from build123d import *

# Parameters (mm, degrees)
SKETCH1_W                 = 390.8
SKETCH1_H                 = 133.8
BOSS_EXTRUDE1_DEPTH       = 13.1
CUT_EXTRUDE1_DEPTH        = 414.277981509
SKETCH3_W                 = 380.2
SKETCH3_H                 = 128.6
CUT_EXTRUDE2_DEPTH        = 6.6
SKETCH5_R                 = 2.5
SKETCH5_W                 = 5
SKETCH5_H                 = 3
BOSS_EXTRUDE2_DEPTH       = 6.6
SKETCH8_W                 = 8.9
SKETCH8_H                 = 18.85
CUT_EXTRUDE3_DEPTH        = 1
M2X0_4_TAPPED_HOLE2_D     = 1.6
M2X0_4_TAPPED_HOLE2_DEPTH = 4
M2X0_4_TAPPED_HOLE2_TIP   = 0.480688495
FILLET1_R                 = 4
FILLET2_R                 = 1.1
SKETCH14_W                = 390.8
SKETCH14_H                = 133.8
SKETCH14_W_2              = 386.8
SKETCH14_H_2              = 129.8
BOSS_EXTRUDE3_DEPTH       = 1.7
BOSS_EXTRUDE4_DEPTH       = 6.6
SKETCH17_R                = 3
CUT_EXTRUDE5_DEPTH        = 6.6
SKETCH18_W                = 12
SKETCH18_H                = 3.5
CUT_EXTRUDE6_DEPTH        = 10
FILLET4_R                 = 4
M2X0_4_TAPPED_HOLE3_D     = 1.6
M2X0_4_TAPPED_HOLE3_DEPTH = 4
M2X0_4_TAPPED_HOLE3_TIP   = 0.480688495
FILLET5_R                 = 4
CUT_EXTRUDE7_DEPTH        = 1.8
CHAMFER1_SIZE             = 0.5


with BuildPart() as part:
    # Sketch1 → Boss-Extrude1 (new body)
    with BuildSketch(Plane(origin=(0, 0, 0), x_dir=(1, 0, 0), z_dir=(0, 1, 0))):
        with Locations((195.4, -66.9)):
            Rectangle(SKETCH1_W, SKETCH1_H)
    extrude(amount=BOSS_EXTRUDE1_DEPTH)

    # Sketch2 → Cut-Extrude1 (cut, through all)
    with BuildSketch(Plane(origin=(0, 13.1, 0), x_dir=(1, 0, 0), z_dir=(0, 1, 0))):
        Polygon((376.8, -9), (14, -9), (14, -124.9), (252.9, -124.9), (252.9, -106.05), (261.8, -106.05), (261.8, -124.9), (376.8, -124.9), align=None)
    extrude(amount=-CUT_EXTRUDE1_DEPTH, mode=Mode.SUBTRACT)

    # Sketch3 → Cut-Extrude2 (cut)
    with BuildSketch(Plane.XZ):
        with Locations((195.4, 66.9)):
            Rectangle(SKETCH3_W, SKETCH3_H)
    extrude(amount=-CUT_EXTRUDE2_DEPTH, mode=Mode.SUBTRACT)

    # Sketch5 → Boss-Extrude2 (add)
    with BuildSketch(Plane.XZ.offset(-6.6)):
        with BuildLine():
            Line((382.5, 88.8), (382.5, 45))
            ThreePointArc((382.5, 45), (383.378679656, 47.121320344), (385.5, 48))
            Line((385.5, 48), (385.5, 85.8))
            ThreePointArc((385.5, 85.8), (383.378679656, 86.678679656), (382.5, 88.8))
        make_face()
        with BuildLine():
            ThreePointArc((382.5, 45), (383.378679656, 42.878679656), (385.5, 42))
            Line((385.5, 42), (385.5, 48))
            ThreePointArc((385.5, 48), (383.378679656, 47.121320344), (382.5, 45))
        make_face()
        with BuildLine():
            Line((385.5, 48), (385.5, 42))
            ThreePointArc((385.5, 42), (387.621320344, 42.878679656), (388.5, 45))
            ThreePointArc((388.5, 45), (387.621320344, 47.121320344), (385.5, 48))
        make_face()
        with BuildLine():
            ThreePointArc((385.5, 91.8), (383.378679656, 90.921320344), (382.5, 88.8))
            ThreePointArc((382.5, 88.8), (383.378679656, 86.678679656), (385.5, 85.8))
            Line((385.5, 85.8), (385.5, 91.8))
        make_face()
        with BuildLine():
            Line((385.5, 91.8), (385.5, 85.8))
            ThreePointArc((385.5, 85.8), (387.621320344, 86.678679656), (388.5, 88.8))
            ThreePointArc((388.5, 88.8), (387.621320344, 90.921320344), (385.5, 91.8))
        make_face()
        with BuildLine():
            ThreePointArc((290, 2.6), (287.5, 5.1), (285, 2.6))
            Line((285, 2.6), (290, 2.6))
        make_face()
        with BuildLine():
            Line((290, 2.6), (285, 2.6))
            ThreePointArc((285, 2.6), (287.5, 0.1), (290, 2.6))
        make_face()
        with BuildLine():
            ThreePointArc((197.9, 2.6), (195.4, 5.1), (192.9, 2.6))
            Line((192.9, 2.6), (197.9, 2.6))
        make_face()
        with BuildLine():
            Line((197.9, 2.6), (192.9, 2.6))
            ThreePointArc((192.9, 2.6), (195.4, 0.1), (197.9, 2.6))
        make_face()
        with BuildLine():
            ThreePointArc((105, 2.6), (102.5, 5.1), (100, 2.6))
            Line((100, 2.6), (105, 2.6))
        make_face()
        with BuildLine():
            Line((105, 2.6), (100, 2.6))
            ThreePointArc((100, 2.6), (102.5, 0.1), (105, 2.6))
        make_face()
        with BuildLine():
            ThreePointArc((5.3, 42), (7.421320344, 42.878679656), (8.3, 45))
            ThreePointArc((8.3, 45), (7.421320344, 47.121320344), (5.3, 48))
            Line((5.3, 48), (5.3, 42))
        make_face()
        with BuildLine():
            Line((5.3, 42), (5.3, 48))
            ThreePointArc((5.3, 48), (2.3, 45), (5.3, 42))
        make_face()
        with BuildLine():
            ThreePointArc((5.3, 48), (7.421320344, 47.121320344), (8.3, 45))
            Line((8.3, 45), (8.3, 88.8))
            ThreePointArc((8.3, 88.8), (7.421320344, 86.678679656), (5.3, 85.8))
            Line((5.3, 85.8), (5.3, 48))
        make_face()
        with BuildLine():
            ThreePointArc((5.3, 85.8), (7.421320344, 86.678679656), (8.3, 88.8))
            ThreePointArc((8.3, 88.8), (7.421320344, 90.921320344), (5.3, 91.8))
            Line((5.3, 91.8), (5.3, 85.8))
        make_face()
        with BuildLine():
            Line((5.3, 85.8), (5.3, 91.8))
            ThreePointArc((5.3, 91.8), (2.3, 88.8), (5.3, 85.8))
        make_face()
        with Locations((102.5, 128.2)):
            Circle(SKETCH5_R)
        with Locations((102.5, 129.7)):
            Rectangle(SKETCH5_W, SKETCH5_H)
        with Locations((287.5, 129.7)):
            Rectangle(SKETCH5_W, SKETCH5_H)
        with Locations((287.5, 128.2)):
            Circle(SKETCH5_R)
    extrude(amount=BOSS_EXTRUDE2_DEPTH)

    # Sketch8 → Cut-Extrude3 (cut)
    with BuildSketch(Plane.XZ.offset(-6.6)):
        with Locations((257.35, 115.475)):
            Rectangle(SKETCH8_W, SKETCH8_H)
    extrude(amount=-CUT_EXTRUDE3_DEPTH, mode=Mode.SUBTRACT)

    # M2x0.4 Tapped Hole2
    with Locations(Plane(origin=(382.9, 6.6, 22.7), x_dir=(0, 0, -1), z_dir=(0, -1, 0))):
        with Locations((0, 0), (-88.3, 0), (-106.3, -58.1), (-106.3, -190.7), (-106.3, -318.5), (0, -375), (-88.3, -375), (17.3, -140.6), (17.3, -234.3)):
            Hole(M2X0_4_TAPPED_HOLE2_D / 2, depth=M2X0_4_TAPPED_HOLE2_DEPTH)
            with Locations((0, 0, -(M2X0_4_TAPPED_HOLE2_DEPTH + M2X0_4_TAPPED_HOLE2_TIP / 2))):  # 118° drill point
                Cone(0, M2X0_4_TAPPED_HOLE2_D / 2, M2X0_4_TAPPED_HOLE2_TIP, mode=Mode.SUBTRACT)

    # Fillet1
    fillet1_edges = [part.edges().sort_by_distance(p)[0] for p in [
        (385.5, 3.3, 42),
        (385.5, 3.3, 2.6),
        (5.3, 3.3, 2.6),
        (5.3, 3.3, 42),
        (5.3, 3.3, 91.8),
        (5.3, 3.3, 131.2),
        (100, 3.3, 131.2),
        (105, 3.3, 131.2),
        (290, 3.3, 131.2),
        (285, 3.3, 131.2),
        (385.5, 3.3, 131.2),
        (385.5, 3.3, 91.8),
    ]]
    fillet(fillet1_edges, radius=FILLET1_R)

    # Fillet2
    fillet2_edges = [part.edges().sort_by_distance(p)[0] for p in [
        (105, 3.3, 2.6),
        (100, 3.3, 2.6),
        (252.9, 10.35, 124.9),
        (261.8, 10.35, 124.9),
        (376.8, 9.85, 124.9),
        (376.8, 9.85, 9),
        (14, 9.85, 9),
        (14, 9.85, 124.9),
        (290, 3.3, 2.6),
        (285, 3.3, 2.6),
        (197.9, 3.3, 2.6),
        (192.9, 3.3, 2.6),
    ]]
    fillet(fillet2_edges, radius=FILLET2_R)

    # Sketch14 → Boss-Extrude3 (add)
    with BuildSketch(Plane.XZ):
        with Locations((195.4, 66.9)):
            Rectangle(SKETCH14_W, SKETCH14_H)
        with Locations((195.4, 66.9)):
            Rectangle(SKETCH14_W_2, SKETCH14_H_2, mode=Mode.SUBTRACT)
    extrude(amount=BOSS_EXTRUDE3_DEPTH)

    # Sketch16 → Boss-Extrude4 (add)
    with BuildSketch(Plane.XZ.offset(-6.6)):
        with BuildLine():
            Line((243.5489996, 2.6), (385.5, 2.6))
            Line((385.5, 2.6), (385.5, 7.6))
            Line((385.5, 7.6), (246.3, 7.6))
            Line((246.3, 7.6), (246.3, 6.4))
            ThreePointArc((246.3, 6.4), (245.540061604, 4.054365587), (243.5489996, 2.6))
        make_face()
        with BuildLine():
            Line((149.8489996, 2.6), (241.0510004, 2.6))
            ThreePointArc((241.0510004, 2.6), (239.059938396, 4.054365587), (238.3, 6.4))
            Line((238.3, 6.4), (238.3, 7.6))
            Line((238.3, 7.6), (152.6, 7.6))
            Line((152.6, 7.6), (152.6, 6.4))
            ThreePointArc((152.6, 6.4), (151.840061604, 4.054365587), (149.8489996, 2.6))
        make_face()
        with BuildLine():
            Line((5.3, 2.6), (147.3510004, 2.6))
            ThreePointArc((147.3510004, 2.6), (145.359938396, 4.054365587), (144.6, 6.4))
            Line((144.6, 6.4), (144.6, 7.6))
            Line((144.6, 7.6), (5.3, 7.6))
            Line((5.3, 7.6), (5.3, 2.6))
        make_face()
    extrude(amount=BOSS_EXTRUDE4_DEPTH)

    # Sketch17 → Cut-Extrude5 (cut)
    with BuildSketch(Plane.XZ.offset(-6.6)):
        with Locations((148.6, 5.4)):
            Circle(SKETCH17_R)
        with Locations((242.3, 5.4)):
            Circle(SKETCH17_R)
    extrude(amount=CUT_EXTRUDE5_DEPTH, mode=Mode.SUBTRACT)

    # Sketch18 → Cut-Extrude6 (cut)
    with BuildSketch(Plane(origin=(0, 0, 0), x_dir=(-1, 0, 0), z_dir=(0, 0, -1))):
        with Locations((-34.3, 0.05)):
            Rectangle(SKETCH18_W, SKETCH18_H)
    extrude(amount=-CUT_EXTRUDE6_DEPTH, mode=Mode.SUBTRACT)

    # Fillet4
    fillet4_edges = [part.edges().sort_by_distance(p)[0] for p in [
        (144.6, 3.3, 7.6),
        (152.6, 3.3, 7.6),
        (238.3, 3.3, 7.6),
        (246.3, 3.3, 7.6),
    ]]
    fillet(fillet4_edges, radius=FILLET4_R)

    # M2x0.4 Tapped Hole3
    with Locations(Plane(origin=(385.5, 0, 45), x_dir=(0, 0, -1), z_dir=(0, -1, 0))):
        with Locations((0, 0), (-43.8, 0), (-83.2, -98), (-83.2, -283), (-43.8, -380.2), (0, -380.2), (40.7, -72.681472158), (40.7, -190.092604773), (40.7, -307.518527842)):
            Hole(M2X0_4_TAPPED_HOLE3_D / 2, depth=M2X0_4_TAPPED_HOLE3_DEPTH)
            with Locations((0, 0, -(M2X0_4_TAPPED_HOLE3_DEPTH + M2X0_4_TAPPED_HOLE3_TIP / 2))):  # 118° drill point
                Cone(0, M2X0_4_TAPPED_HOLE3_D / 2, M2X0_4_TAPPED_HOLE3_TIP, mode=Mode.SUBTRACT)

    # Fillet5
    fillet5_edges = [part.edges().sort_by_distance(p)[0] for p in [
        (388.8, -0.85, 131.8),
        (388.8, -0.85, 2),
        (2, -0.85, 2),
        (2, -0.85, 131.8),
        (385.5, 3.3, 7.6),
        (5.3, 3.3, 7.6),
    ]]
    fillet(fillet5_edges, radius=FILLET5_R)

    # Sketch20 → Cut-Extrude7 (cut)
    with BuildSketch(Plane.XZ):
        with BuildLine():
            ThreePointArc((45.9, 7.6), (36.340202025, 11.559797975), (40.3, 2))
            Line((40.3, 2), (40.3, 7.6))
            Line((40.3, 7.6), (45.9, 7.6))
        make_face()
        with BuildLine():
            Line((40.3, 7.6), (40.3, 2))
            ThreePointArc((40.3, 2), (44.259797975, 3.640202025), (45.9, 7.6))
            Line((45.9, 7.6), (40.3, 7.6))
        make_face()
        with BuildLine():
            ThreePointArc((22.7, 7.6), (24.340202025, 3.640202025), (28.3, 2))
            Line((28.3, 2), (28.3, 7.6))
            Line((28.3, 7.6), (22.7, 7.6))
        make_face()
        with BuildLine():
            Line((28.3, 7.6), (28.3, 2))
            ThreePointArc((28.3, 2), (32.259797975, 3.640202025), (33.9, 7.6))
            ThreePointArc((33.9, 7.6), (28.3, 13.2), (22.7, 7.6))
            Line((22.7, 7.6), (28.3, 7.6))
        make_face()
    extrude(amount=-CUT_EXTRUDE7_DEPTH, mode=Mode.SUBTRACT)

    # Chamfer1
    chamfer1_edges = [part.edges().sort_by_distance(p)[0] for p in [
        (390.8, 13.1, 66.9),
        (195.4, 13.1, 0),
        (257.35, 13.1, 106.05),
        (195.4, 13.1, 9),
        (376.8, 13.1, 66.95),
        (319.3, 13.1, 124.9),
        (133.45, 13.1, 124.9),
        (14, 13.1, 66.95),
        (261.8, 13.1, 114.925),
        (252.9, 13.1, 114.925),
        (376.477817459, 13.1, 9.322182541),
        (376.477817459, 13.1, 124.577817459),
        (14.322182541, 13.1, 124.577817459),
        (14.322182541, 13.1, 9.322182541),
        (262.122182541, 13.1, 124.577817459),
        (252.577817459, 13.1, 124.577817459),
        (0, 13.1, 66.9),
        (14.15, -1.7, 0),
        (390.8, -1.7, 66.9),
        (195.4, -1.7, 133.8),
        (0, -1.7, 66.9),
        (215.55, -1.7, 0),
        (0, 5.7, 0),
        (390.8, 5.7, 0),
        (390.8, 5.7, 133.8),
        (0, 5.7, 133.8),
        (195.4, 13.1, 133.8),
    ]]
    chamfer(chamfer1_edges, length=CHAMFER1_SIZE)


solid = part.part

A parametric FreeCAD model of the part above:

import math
import FreeCAD as App
import Part
import Sketcher

V = App.Vector


def edges_at(feature, points):
    """Names of the edges that pass closest to the given points."""
    edges = feature.Shape.Edges
    near = lambda p: min(range(len(edges)), key=lambda i: edges[i].distToShape(Part.Vertex(*p))[0])
    return sorted({f"Edge{near(p) + 1}" for p in points})


def add_polygon(sketch, points):
    """Adds a closed chain of lines whose ends are joined by coincident constraints."""
    first, n = sketch.GeometryCount, len(points)
    for a, b in zip(points, points[1:] + points[:1]):
        sketch.addGeometry(Part.LineSegment(App.Vector(*a, 0), App.Vector(*b, 0)), False)
    for i in range(n):
        sketch.addConstraint(Sketcher.Constraint("Coincident", first + i, 2, first + (i + 1) % n, 1))

doc = App.newDocument("Part")
body = doc.addObject("PartDesign::Body", "Body")

sketch1 = body.newObject("Sketcher::SketchObject", "Sketch")
sketch1.AttachmentSupport = (doc.getObject("XZ_Plane"), [""])
sketch1.MapMode = "FlatFace"
add_polygon(sketch1, [(0, 0), (0, 134), (391, 134), (391, 0)])
sketch1.addConstraint(Sketcher.Constraint("Vertical", 0))
sketch1.addConstraint(Sketcher.Constraint("Horizontal", 1))
sketch1.addConstraint(Sketcher.Constraint("Vertical", 2))
sketch1.addConstraint(Sketcher.Constraint("Horizontal", 3))
sketch1.addConstraint(Sketcher.Constraint("Coincident", 3, 2, -1, 1))
sketch1.addConstraint(Sketcher.Constraint("DistanceX", 1, 1, 1, 2, 390.8))
sketch1.addConstraint(Sketcher.Constraint("DistanceY", 0, 1, 0, 2, 133.8))
pad1 = body.newObject("PartDesign::Pad", "Pad")
pad1.Profile = sketch1
pad1.Length = 13.1
pad1.Reversed = True

sketch2 = body.newObject("Sketcher::SketchObject", "Sketch001")
sketch2.AttachmentSupport = (doc.getObject("XZ_Plane"), [""])
sketch2.MapMode = "FlatFace"
sketch2.AttachmentOffset = App.Placement(V(0, 0, -13.1), App.Rotation())
add_polygon(sketch2, [(377, 9), (14, 9), (14, 125), (253, 125), (253, 106), (262, 106), (262, 125), (377, 125)])
sketch2.addConstraint(Sketcher.Constraint("Horizontal", 0))
sketch2.addConstraint(Sketcher.Constraint("Vertical", 1))
sketch2.addConstraint(Sketcher.Constraint("Horizontal", 2))
sketch2.addConstraint(Sketcher.Constraint("Vertical", 3))
sketch2.addConstraint(Sketcher.Constraint("Horizontal", 4))
sketch2.addConstraint(Sketcher.Constraint("Vertical", 5))
sketch2.addConstraint(Sketcher.Constraint("Horizontal", 6))
sketch2.addConstraint(Sketcher.Constraint("Vertical", 7))
sketch2.addConstraint(Sketcher.Constraint("Horizontal", 2, 2, 5, 2))
sketch2.addConstraint(Sketcher.Constraint("DistanceX", 6, 1, 6, 2, 115.0))
sketch2.addConstraint(Sketcher.Constraint("DistanceX", 0, 2, 0, 1, 362.8))
sketch2.addConstraint(Sketcher.Constraint("DistanceX", 2, 1, 2, 2, 238.9))
sketch2.addConstraint(Sketcher.Constraint("DistanceY", 1, 1, 1, 2, 115.9))
sketch2.addConstraint(Sketcher.Constraint("DistanceX", -1, 1, 0, 2, 14.0))
sketch2.addConstraint(Sketcher.Constraint("DistanceY", -1, 1, 0, 2, 9.0))
sketch2.addConstraint(Sketcher.Constraint("DistanceY", 3, 2, 3, 1, 18.85))
pocket1 = body.newObject("PartDesign::Pocket", "Pocket")
pocket1.Profile = sketch2
pocket1.Type = "ThroughAll"
pocket1.Reversed = True

sketch3 = body.newObject("Sketcher::SketchObject", "Sketch002")
sketch3.AttachmentSupport = (doc.getObject("XZ_Plane"), [""])
sketch3.MapMode = "FlatFace"
add_polygon(sketch3, [(5, 131), (5, 3), (386, 3), (386, 131)])
sketch3.addConstraint(Sketcher.Constraint("Vertical", 0))
sketch3.addConstraint(Sketcher.Constraint("Horizontal", 1))
sketch3.addConstraint(Sketcher.Constraint("Vertical", 2))
sketch3.addConstraint(Sketcher.Constraint("Horizontal", 3))
sketch3.addConstraint(Sketcher.Constraint("DistanceX", 1, 1, 1, 2, 380.2))
sketch3.addConstraint(Sketcher.Constraint("DistanceY", 0, 2, 0, 1, 128.6))
sketch3.addConstraint(Sketcher.Constraint("DistanceX", -1, 1, 0, 2, 5.3))
sketch3.addConstraint(Sketcher.Constraint("DistanceY", -1, 1, 0, 2, 2.6))
pocket2 = body.newObject("PartDesign::Pocket", "Pocket001")
pocket2.Profile = sketch3
pocket2.Length = 6.6

sketch4 = body.newObject("Sketcher::SketchObject", "Sketch003")
sketch4.AttachmentSupport = (doc.getObject("XZ_Plane"), [""])
sketch4.MapMode = "FlatFace"
sketch4.AttachmentOffset = App.Placement(V(0, 0, -6.6), App.Rotation())
sketch4.addGeometry(Part.LineSegment(V(382.5, 88.8, 0), V(382.5, 45, 0)), False)
sketch4.addGeometry(Part.ArcOfCircle(Part.Circle(V(385.5, 45, 0), V(0, 0, 1), 3), math.radians(180), math.radians(270)), False)
sketch4.addGeometry(Part.ArcOfCircle(Part.Circle(V(385.5, 45, 0), V(0, 0, 1), 3), math.radians(-90), math.radians(0)), False)
sketch4.addGeometry(Part.ArcOfCircle(Part.Circle(V(385.5, 45, 0), V(0, 0, 1), 3), math.radians(0), math.radians(90)), False)
sketch4.addGeometry(Part.LineSegment(V(385.5, 48, 0), V(385.5, 85.8, 0)), False)
sketch4.addGeometry(Part.ArcOfCircle(Part.Circle(V(385.5, 88.8, 0), V(0, 0, 1), 3), math.radians(-90), math.radians(0)), False)
sketch4.addGeometry(Part.ArcOfCircle(Part.Circle(V(385.5, 88.8, 0), V(0, 0, 1), 3), math.radians(0), math.radians(90)), False)
sketch4.addGeometry(Part.ArcOfCircle(Part.Circle(V(385.5, 88.8, 0), V(0, 0, 1), 3), math.radians(90), math.radians(180)), False)
sketch4.addGeometry(Part.Circle(V(287.5, 2.6, 0), V(0, 0, 1), 2.5), False)
sketch4.addGeometry(Part.Circle(V(195.4, 2.6, 0), V(0, 0, 1), 2.5), False)
sketch4.addGeometry(Part.Circle(V(102.5, 2.6, 0), V(0, 0, 1), 2.5), False)
sketch4.addGeometry(Part.ArcOfCircle(Part.Circle(V(5.3, 45, 0), V(0, 0, 1), 3), math.radians(-90), math.radians(0)), False)
sketch4.addGeometry(Part.LineSegment(V(8.3, 45, 0), V(8.3, 88.8, 0)), False)
sketch4.addGeometry(Part.ArcOfCircle(Part.Circle(V(5.3, 88.8, 0), V(0, 0, 1), 3), math.radians(0), math.radians(90)), False)
sketch4.addGeometry(Part.ArcOfCircle(Part.Circle(V(5.3, 88.8, 0), V(0, 0, 1), 3), math.radians(90), math.radians(270)), False)
sketch4.addGeometry(Part.LineSegment(V(5.3, 85.8, 0), V(5.3, 48, 0)), False)
sketch4.addGeometry(Part.ArcOfCircle(Part.Circle(V(5.3, 45, 0), V(0, 0, 1), 3), math.radians(90), math.radians(270)), False)
sketch4.addGeometry(Part.ArcOfCircle(Part.Circle(V(102.5, 128.2, 0), V(0, 0, 1), 2.5), math.radians(180), math.radians(360)), False)
sketch4.addGeometry(Part.LineSegment(V(105, 128.2, 0), V(105, 131.2, 0)), False)
sketch4.addGeometry(Part.LineSegment(V(105, 131.2, 0), V(100, 131.2, 0)), False)
sketch4.addGeometry(Part.LineSegment(V(100, 131.2, 0), V(100, 128.2, 0)), False)
sketch4.addGeometry(Part.LineSegment(V(285, 131.2, 0), V(285, 128.2, 0)), False)
sketch4.addGeometry(Part.ArcOfCircle(Part.Circle(V(287.5, 128.2, 0), V(0, 0, 1), 2.5), math.radians(180), math.radians(360)), False)
sketch4.addGeometry(Part.LineSegment(V(290, 128.2, 0), V(290, 131.2, 0)), False)
sketch4.addGeometry(Part.LineSegment(V(290, 131.2, 0), V(285, 131.2, 0)), False)
sketch4.addConstraint(Sketcher.Constraint("Tangent", 0, 2, 1, 1))
sketch4.addConstraint(Sketcher.Constraint("Tangent", 1, 2, 2, 1))
sketch4.addConstraint(Sketcher.Constraint("Tangent", 2, 2, 3, 1))
sketch4.addConstraint(Sketcher.Constraint("Coincident", 3, 2, 4, 1))
sketch4.addConstraint(Sketcher.Constraint("Coincident", 4, 2, 5, 1))
sketch4.addConstraint(Sketcher.Constraint("Tangent", 5, 2, 6, 1))
sketch4.addConstraint(Sketcher.Constraint("Tangent", 6, 2, 7, 1))
sketch4.addConstraint(Sketcher.Constraint("Tangent", 7, 2, 0, 1))
sketch4.addConstraint(Sketcher.Constraint("Tangent", 11, 2, 12, 1))
sketch4.addConstraint(Sketcher.Constraint("Tangent", 12, 2, 13, 1))
sketch4.addConstraint(Sketcher.Constraint("Tangent", 13, 2, 14, 1))
sketch4.addConstraint(Sketcher.Constraint("Coincident", 14, 2, 15, 1))
sketch4.addConstraint(Sketcher.Constraint("Coincident", 15, 2, 16, 1))
sketch4.addConstraint(Sketcher.Constraint("Tangent", 16, 2, 11, 1))
sketch4.addConstraint(Sketcher.Constraint("Tangent", 17, 2, 18, 1))
sketch4.addConstraint(Sketcher.Constraint("Coincident", 18, 2, 19, 1))
sketch4.addConstraint(Sketcher.Constraint("Coincident", 19, 2, 20, 1))
sketch4.addConstraint(Sketcher.Constraint("Tangent", 20, 2, 17, 1))
sketch4.addConstraint(Sketcher.Constraint("Tangent", 21, 2, 22, 1))
sketch4.addConstraint(Sketcher.Constraint("Tangent", 22, 2, 23, 1))
sketch4.addConstraint(Sketcher.Constraint("Coincident", 23, 2, 24, 1))
sketch4.addConstraint(Sketcher.Constraint("Coincident", 24, 2, 21, 1))
sketch4.addConstraint(Sketcher.Constraint("Vertical", 0))
sketch4.addConstraint(Sketcher.Constraint("Vertical", 4))
sketch4.addConstraint(Sketcher.Constraint("Vertical", 12))
sketch4.addConstraint(Sketcher.Constraint("Vertical", 15))
sketch4.addConstraint(Sketcher.Constraint("Vertical", 18))
sketch4.addConstraint(Sketcher.Constraint("Horizontal", 19))
sketch4.addConstraint(Sketcher.Constraint("Vertical", 20))
sketch4.addConstraint(Sketcher.Constraint("Vertical", 21))
sketch4.addConstraint(Sketcher.Constraint("Vertical", 23))
sketch4.addConstraint(Sketcher.Constraint("Horizontal", 24))
sketch4.addConstraint(Sketcher.Constraint("Coincident", 3, 3, 1, 3))
sketch4.addConstraint(Sketcher.Constraint("Coincident", 7, 3, 5, 3))
sketch4.addConstraint(Sketcher.Constraint("Equal", 3, 5))
sketch4.addConstraint(Sketcher.Constraint("Equal", 8, 9))
sketch4.addConstraint(Sketcher.Constraint("Equal", 9, 10))
sketch4.addConstraint(Sketcher.Constraint("Equal", 7, 11))
sketch4.addConstraint(Sketcher.Constraint("Equal", 11, 13))
sketch4.addConstraint(Sketcher.Constraint("Equal", 13, 14))
sketch4.addConstraint(Sketcher.Constraint("Equal", 14, 16))
sketch4.addConstraint(Sketcher.Constraint("Equal", 10, 17))
sketch4.addConstraint(Sketcher.Constraint("Equal", 17, 22))
sketch4.addConstraint(Sketcher.Constraint("Horizontal", 8, 3, 9, 3))
sketch4.addConstraint(Sketcher.Constraint("Horizontal", 9, 3, 10, 3))
sketch4.addConstraint(Sketcher.Constraint("Horizontal", 3, 3, 11, 3))
sketch4.addConstraint(Sketcher.Constraint("Horizontal", 7, 3, 13, 3))
sketch4.addConstraint(Sketcher.Constraint("Horizontal", 17, 3, 22, 3))
sketch4.addConstraint(Sketcher.Constraint("Horizontal", 0, 2, 2, 2))
sketch4.addConstraint(Sketcher.Constraint("Horizontal", 14, 3, 5, 2))
sketch4.addConstraint(Sketcher.Constraint("Horizontal", 19, 2, 23, 2))
sketch4.addConstraint(Sketcher.Constraint("Vertical", 10, 3, 17, 3))
sketch4.addConstraint(Sketcher.Constraint("Vertical", 8, 3, 22, 3))
sketch4.addConstraint(Sketcher.Constraint("Vertical", 7, 3, 1, 2))
sketch4.addConstraint(Sketcher.Constraint("Vertical", 1, 2, 3, 2))
sketch4.addConstraint(Sketcher.Constraint("Vertical", 4, 2, 6, 2))
sketch4.addConstraint(Sketcher.Constraint("Vertical", 16, 3, 13, 2))
sketch4.addConstraint(Sketcher.Constraint("Vertical", 13, 2, 14, 2))
sketch4.addConstraint(Sketcher.Constraint("Vertical", 15, 2, 16, 2))
sketch4.addConstraint(Sketcher.Constraint("Diameter", 8, 5.0))
sketch4.addConstraint(Sketcher.Constraint("Radius", 1, 3.0))
sketch4.addConstraint(Sketcher.Constraint("DistanceY", 18, 1, 18, 2, 3.0))
sketch4.addConstraint(Sketcher.Constraint("DistanceY", 0, 2, 0, 1, 43.8))
sketch4.addConstraint(Sketcher.Constraint("DistanceY", -1, 1, 1, 3, 45.0))
sketch4.addConstraint(Sketcher.Constraint("DistanceX", -1, 1, 17, 2, 105.0))
sketch4.addConstraint(Sketcher.Constraint("DistanceX", -1, 1, 21, 2, 285.0))
sketch4.addConstraint(Sketcher.Constraint("DistanceX", 8, 3, 1, 3, 98.0))
sketch4.addConstraint(Sketcher.Constraint("DistanceY", -1, 1, 8, 3, 2.6))
sketch4.addConstraint(Sketcher.Constraint("DistanceX", -1, 1, 9, 3, 195.4))
sketch4.addConstraint(Sketcher.Constraint("DistanceX", -1, 1, 11, 3, 5.3))
sketch4.addConstraint(Sketcher.Constraint("DistanceY", -1, 1, 17, 3, 128.2))
pad2 = body.newObject("PartDesign::Pad", "Pad001")
pad2.Profile = sketch4
pad2.Length = 6.6

sketch5 = body.newObject("Sketcher::SketchObject", "Sketch004")
sketch5.AttachmentSupport = (doc.getObject("XZ_Plane"), [""])
sketch5.MapMode = "FlatFace"
sketch5.AttachmentOffset = App.Placement(V(0, 0, -6.6), App.Rotation())
add_polygon(sketch5, [(253, 125), (253, 106), (262, 106), (262, 125)])
sketch5.addConstraint(Sketcher.Constraint("Vertical", 0))
sketch5.addConstraint(Sketcher.Constraint("Horizontal", 1))
sketch5.addConstraint(Sketcher.Constraint("Vertical", 2))
sketch5.addConstraint(Sketcher.Constraint("Horizontal", 3))
sketch5.addConstraint(Sketcher.Constraint("DistanceX", 1, 1, 1, 2, 8.9))
sketch5.addConstraint(Sketcher.Constraint("DistanceY", 0, 2, 0, 1, 18.85))
sketch5.addConstraint(Sketcher.Constraint("DistanceX", -1, 1, 0, 2, 252.9))
sketch5.addConstraint(Sketcher.Constraint("DistanceY", -1, 1, 2, 2, 124.9))
pocket3 = body.newObject("PartDesign::Pocket", "Pocket002")
pocket3.Profile = sketch5
pocket3.Length = 1

sketch6 = body.newObject("Sketcher::SketchObject", "Sketch005")
sketch6.AttachmentSupport = (doc.getObject("XZ_Plane"), [""])
sketch6.MapMode = "FlatFace"
sketch6.AttachmentOffset = App.Placement(V(0, 0, -6.6), App.Rotation())
sketch6.addGeometry(Part.Circle(V(382.9, 22.7, 0), V(0, 0, 1), 0.8), False)
sketch6.addGeometry(Part.Circle(V(382.9, 111, 0), V(0, 0, 1), 0.8), False)
sketch6.addGeometry(Part.Circle(V(324.8, 129, 0), V(0, 0, 1), 0.8), False)
sketch6.addGeometry(Part.Circle(V(192.2, 129, 0), V(0, 0, 1), 0.8), False)
sketch6.addGeometry(Part.Circle(V(64.4, 129, 0), V(0, 0, 1), 0.8), False)
sketch6.addGeometry(Part.Circle(V(7.9, 22.7, 0), V(0, 0, 1), 0.8), False)
sketch6.addGeometry(Part.Circle(V(7.9, 111, 0), V(0, 0, 1), 0.8), False)
sketch6.addGeometry(Part.Circle(V(242.3, 5.4, 0), V(0, 0, 1), 0.8), False)
sketch6.addGeometry(Part.Circle(V(148.6, 5.4, 0), V(0, 0, 1), 0.8), False)
sketch6.addConstraint(Sketcher.Constraint("Equal", 0, 1))
sketch6.addConstraint(Sketcher.Constraint("Equal", 1, 2))
sketch6.addConstraint(Sketcher.Constraint("Equal", 2, 3))
sketch6.addConstraint(Sketcher.Constraint("Equal", 3, 4))
sketch6.addConstraint(Sketcher.Constraint("Equal", 4, 5))
sketch6.addConstraint(Sketcher.Constraint("Equal", 5, 6))
sketch6.addConstraint(Sketcher.Constraint("Equal", 6, 7))
sketch6.addConstraint(Sketcher.Constraint("Equal", 7, 8))
sketch6.addConstraint(Sketcher.Constraint("Horizontal", 2, 3, 3, 3))
sketch6.addConstraint(Sketcher.Constraint("Horizontal", 3, 3, 4, 3))
sketch6.addConstraint(Sketcher.Constraint("Horizontal", 0, 3, 5, 3))
sketch6.addConstraint(Sketcher.Constraint("Horizontal", 1, 3, 6, 3))
sketch6.addConstraint(Sketcher.Constraint("Horizontal", 7, 3, 8, 3))
sketch6.addConstraint(Sketcher.Constraint("Vertical", 0, 3, 1, 3))
sketch6.addConstraint(Sketcher.Constraint("Vertical", 5, 3, 6, 3))
sketch6.addConstraint(Sketcher.Constraint("Diameter", 0, 1.6))
sketch6.addConstraint(Sketcher.Constraint("DistanceY", -1, 1, 1, 3, 111.0))
sketch6.addConstraint(Sketcher.Constraint("DistanceY", -1, 1, 2, 3, 129.0))
sketch6.addConstraint(Sketcher.Constraint("DistanceX", 5, 3, 0, 3, 375.0))
sketch6.addConstraint(Sketcher.Constraint("DistanceX", -1, 1, 0, 3, 382.9))
sketch6.addConstraint(Sketcher.Constraint("DistanceY", -1, 1, 0, 3, 22.7))
sketch6.addConstraint(Sketcher.Constraint("DistanceX", -1, 1, 2, 3, 324.8))
sketch6.addConstraint(Sketcher.Constraint("DistanceX", -1, 1, 3, 3, 192.2))
sketch6.addConstraint(Sketcher.Constraint("DistanceX", -1, 1, 4, 3, 64.4))
sketch6.addConstraint(Sketcher.Constraint("DistanceX", -1, 1, 7, 3, 242.3))
sketch6.addConstraint(Sketcher.Constraint("DistanceY", -1, 1, 7, 3, 5.4))
sketch6.addConstraint(Sketcher.Constraint("DistanceX", -1, 1, 8, 3, 148.6))
doc.recompute()
hole = body.newObject("PartDesign::Hole", "Hole")
hole.Profile = sketch6
hole.ThreadType = "None"
hole.Diameter = 1.6
hole.DepthType = "Dimension"
hole.Depth = 4
hole.DrillPoint = "Angled"
hole.DrillPointAngle = 118
doc.recompute()

fillet = body.newObject("PartDesign::Fillet", "Fillet")
fillet.Base = (hole, edges_at(hole, [
    (385.5, 3.3, 42),
    (385.5, 3.3, 2.6),
    (5.3, 3.3, 2.6),
    (5.3, 3.3, 42),
    (5.3, 3.3, 91.8),
    (5.3, 3.3, 131.2),
    (100, 3.3, 131.2),
    (105, 3.3, 131.2),
    (290, 3.3, 131.2),
    (285, 3.3, 131.2),
    (385.5, 3.3, 131.2),
    (385.5, 3.3, 91.8),
]))
fillet.Radius = 4
doc.recompute()

fillet2 = body.newObject("PartDesign::Fillet", "Fillet001")
fillet2.Base = (fillet, edges_at(fillet, [
    (105, 3.3, 2.6),
    (100, 3.3, 2.6),
    (252.9, 10.35, 124.9),
    (261.8, 10.35, 124.9),
    (376.8, 9.85, 124.9),
    (376.8, 9.85, 9),
    (14, 9.85, 9),
    (14, 9.85, 124.9),
    (290, 3.3, 2.6),
    (285, 3.3, 2.6),
    (197.9, 3.3, 2.6),
    (192.9, 3.3, 2.6),
]))
fillet2.Radius = 1.1

sketch7 = body.newObject("Sketcher::SketchObject", "Sketch006")
sketch7.AttachmentSupport = (doc.getObject("XZ_Plane"), [""])
sketch7.MapMode = "FlatFace"
add_polygon(sketch7, [(0, 134), (0, 0), (391, 0), (391, 134)])
add_polygon(sketch7, [(389, 2), (2, 2), (2, 132), (389, 132)])
sketch7.addConstraint(Sketcher.Constraint("Vertical", 0))
sketch7.addConstraint(Sketcher.Constraint("Horizontal", 1))
sketch7.addConstraint(Sketcher.Constraint("Vertical", 2))
sketch7.addConstraint(Sketcher.Constraint("Horizontal", 3))
sketch7.addConstraint(Sketcher.Constraint("Horizontal", 4))
sketch7.addConstraint(Sketcher.Constraint("Vertical", 5))
sketch7.addConstraint(Sketcher.Constraint("Horizontal", 6))
sketch7.addConstraint(Sketcher.Constraint("Vertical", 7))
sketch7.addConstraint(Sketcher.Constraint("Coincident", 0, 2, -1, 1))
sketch7.addConstraint(Sketcher.Constraint("DistanceX", 1, 1, 1, 2, 390.8))
sketch7.addConstraint(Sketcher.Constraint("DistanceX", 4, 2, 4, 1, 386.8))
sketch7.addConstraint(Sketcher.Constraint("DistanceY", 0, 2, 0, 1, 133.8))
sketch7.addConstraint(Sketcher.Constraint("DistanceY", 5, 1, 5, 2, 129.8))
sketch7.addConstraint(Sketcher.Constraint("DistanceX", -1, 1, 4, 2, 2.0))
sketch7.addConstraint(Sketcher.Constraint("DistanceY", -1, 1, 4, 2, 2.0))
pad3 = body.newObject("PartDesign::Pad", "Pad002")
pad3.Profile = sketch7
pad3.Length = 1.7

sketch8 = body.newObject("Sketcher::SketchObject", "Sketch007")
sketch8.AttachmentSupport = (doc.getObject("XZ_Plane"), [""])
sketch8.MapMode = "FlatFace"
sketch8.AttachmentOffset = App.Placement(V(0, 0, -6.6), App.Rotation())
sketch8.addGeometry(Part.LineSegment(V(243.5, 2.6, 0), V(385.5, 2.6, 0)), False)
sketch8.addGeometry(Part.LineSegment(V(385.5, 2.6, 0), V(385.5, 7.6, 0)), False)
sketch8.addGeometry(Part.LineSegment(V(385.5, 7.6, 0), V(246.3, 7.6, 0)), False)
sketch8.addGeometry(Part.LineSegment(V(246.3, 7.6, 0), V(246.3, 6.4, 0)), False)
sketch8.addGeometry(Part.ArcOfCircle(Part.Circle(V(242.3, 6.4, 0), V(0, 0, 1), 4), math.radians(-72), math.radians(0)), False)
sketch8.addGeometry(Part.LineSegment(V(149.8, 2.6, 0), V(241.1, 2.6, 0)), False)
sketch8.addGeometry(Part.ArcOfCircle(Part.Circle(V(242.3, 6.4, 0), V(0, 0, 1), 4), math.radians(-180), math.radians(-108)), False)
sketch8.addGeometry(Part.LineSegment(V(238.3, 6.4, 0), V(238.3, 7.6, 0)), False)
sketch8.addGeometry(Part.LineSegment(V(238.3, 7.6, 0), V(152.6, 7.6, 0)), False)
sketch8.addGeometry(Part.LineSegment(V(152.6, 7.6, 0), V(152.6, 6.4, 0)), False)
sketch8.addGeometry(Part.ArcOfCircle(Part.Circle(V(148.6, 6.4, 0), V(0, 0, 1), 4), math.radians(-72), math.radians(0)), False)
sketch8.addGeometry(Part.LineSegment(V(5.3, 2.6, 0), V(147.4, 2.6, 0)), False)
sketch8.addGeometry(Part.ArcOfCircle(Part.Circle(V(148.6, 6.4, 0), V(0, 0, 1), 4), math.radians(-180), math.radians(-108)), False)
sketch8.addGeometry(Part.LineSegment(V(144.6, 6.4, 0), V(144.6, 7.6, 0)), False)
sketch8.addGeometry(Part.LineSegment(V(144.6, 7.6, 0), V(5.3, 7.6, 0)), False)
sketch8.addGeometry(Part.LineSegment(V(5.3, 7.6, 0), V(5.3, 2.6, 0)), False)
sketch8.addConstraint(Sketcher.Constraint("Coincident", 0, 2, 1, 1))
sketch8.addConstraint(Sketcher.Constraint("Coincident", 1, 2, 2, 1))
sketch8.addConstraint(Sketcher.Constraint("Coincident", 2, 2, 3, 1))
sketch8.addConstraint(Sketcher.Constraint("Tangent", 3, 2, 4, 2))
sketch8.addConstraint(Sketcher.Constraint("Coincident", 4, 1, 0, 1))
sketch8.addConstraint(Sketcher.Constraint("Coincident", 5, 2, 6, 2))
sketch8.addConstraint(Sketcher.Constraint("Tangent", 6, 1, 7, 1))
sketch8.addConstraint(Sketcher.Constraint("Coincident", 7, 2, 8, 1))
sketch8.addConstraint(Sketcher.Constraint("Coincident", 8, 2, 9, 1))
sketch8.addConstraint(Sketcher.Constraint("Tangent", 9, 2, 10, 2))
sketch8.addConstraint(Sketcher.Constraint("Coincident", 10, 1, 5, 1))
sketch8.addConstraint(Sketcher.Constraint("Coincident", 11, 2, 12, 2))
sketch8.addConstraint(Sketcher.Constraint("Tangent", 12, 1, 13, 1))
sketch8.addConstraint(Sketcher.Constraint("Coincident", 13, 2, 14, 1))
sketch8.addConstraint(Sketcher.Constraint("Coincident", 14, 2, 15, 1))
sketch8.addConstraint(Sketcher.Constraint("Coincident", 15, 2, 11, 1))
sketch8.addConstraint(Sketcher.Constraint("Horizontal", 0))
sketch8.addConstraint(Sketcher.Constraint("Vertical", 1))
sketch8.addConstraint(Sketcher.Constraint("Horizontal", 2))
sketch8.addConstraint(Sketcher.Constraint("Vertical", 3))
sketch8.addConstraint(Sketcher.Constraint("Horizontal", 5))
sketch8.addConstraint(Sketcher.Constraint("Vertical", 7))
sketch8.addConstraint(Sketcher.Constraint("Horizontal", 8))
sketch8.addConstraint(Sketcher.Constraint("Vertical", 9))
sketch8.addConstraint(Sketcher.Constraint("Horizontal", 11))
sketch8.addConstraint(Sketcher.Constraint("Vertical", 13))
sketch8.addConstraint(Sketcher.Constraint("Horizontal", 14))
sketch8.addConstraint(Sketcher.Constraint("Vertical", 15))
sketch8.addConstraint(Sketcher.Constraint("Coincident", 6, 3, 4, 3))
sketch8.addConstraint(Sketcher.Constraint("Coincident", 12, 3, 10, 3))
sketch8.addConstraint(Sketcher.Constraint("Equal", 4, 6))
sketch8.addConstraint(Sketcher.Constraint("Equal", 6, 10))
sketch8.addConstraint(Sketcher.Constraint("Equal", 10, 12))
sketch8.addConstraint(Sketcher.Constraint("Horizontal", 6, 3, 10, 3))
sketch8.addConstraint(Sketcher.Constraint("Horizontal", 4, 1, 5, 2))
sketch8.addConstraint(Sketcher.Constraint("Horizontal", 2, 2, 7, 2))
sketch8.addConstraint(Sketcher.Constraint("Horizontal", 10, 1, 11, 2))
sketch8.addConstraint(Sketcher.Constraint("Horizontal", 8, 2, 13, 2))
sketch8.addConstraint(Sketcher.Constraint("Radius", 4, 4.0))
sketch8.addConstraint(Sketcher.Constraint("DistanceY", 1, 1, 1, 2, 5.0))
sketch8.addConstraint(Sketcher.Constraint("DistanceX", 2, 2, 2, 1, 139.2))
sketch8.addConstraint(Sketcher.Constraint("DistanceX", 8, 2, 8, 1, 85.7))
sketch8.addConstraint(Sketcher.Constraint("DistanceX", 14, 2, 14, 1, 139.3))
sketch8.addConstraint(Sketcher.Constraint("DistanceY", 3, 2, 3, 1, 1.2))
sketch8.addConstraint(Sketcher.Constraint("DistanceX", -1, 1, 4, 3, 242.3))
sketch8.addConstraint(Sketcher.Constraint("DistanceY", -1, 1, 4, 3, 6.4))
pad4 = body.newObject("PartDesign::Pad", "Pad003")
pad4.Profile = sketch8
pad4.Length = 6.6

sketch9 = body.newObject("Sketcher::SketchObject", "Sketch008")
sketch9.AttachmentSupport = (doc.getObject("XZ_Plane"), [""])
sketch9.MapMode = "FlatFace"
sketch9.AttachmentOffset = App.Placement(V(0, 0, -6.6), App.Rotation())
sketch9.addGeometry(Part.Circle(V(148.6, 5.4, 0), V(0, 0, 1), 3), False)
sketch9.addGeometry(Part.Circle(V(242.3, 5.4, 0), V(0, 0, 1), 3), False)
sketch9.addConstraint(Sketcher.Constraint("Equal", 0, 1))
sketch9.addConstraint(Sketcher.Constraint("Horizontal", 0, 3, 1, 3))
sketch9.addConstraint(Sketcher.Constraint("Diameter", 0, 6.0))
sketch9.addConstraint(Sketcher.Constraint("DistanceX", -1, 1, 0, 3, 148.6))
sketch9.addConstraint(Sketcher.Constraint("DistanceY", -1, 1, 0, 3, 5.4))
sketch9.addConstraint(Sketcher.Constraint("DistanceX", -1, 1, 1, 3, 242.3))
pocket4 = body.newObject("PartDesign::Pocket", "Pocket003")
pocket4.Profile = sketch9
pocket4.Length = 6.6
pocket4.Reversed = True

sketch10 = body.newObject("Sketcher::SketchObject", "Sketch009")
sketch10.AttachmentSupport = (doc.getObject("XY_Plane"), [""])
sketch10.MapMode = "FlatFace"
add_polygon(sketch10, [(40.3, 1.8), (40.3, -1.7), (28.3, -1.7), (28.3, 1.8)])
sketch10.addConstraint(Sketcher.Constraint("Vertical", 0))
sketch10.addConstraint(Sketcher.Constraint("Horizontal", 1))
sketch10.addConstraint(Sketcher.Constraint("Vertical", 2))
sketch10.addConstraint(Sketcher.Constraint("Horizontal", 3))
sketch10.addConstraint(Sketcher.Constraint("DistanceX", 1, 2, 1, 1, 12.0))
sketch10.addConstraint(Sketcher.Constraint("DistanceY", 0, 2, 0, 1, 3.5))
sketch10.addConstraint(Sketcher.Constraint("DistanceX", -1, 1, 0, 2, 40.3))
sketch10.addConstraint(Sketcher.Constraint("DistanceY", 0, 2, -1, 1, 1.7))
pocket5 = body.newObject("PartDesign::Pocket", "Pocket004")
pocket5.Profile = sketch10
pocket5.Length = 10
pocket5.Reversed = True
doc.recompute()

fillet3 = body.newObject("PartDesign::Fillet", "Fillet002")
fillet3.Base = (pocket5, edges_at(pocket5, [
    (144.6, 3.3, 7.6),
    (152.6, 3.3, 7.6),
    (238.3, 3.3, 7.6),
    (246.3, 3.3, 7.6),
]))
fillet3.Radius = 4

sketch11 = body.newObject("Sketcher::SketchObject", "Sketch010")
sketch11.AttachmentSupport = (doc.getObject("XZ_Plane"), [""])
sketch11.MapMode = "FlatFace"
sketch11.addGeometry(Part.Circle(V(385.5, 45, 0), V(0, 0, 1), 0.8), False)
sketch11.addGeometry(Part.Circle(V(385.5, 88.8, 0), V(0, 0, 1), 0.8), False)
sketch11.addGeometry(Part.Circle(V(287.5, 128.2, 0), V(0, 0, 1), 0.8), False)
sketch11.addGeometry(Part.Circle(V(102.5, 128.2, 0), V(0, 0, 1), 0.8), False)
sketch11.addGeometry(Part.Circle(V(5.3, 88.8, 0), V(0, 0, 1), 0.8), False)
sketch11.addGeometry(Part.Circle(V(5.3, 45, 0), V(0, 0, 1), 0.8), False)
sketch11.addGeometry(Part.Circle(V(312.8, 4.3, 0), V(0, 0, 1), 0.8), False)
sketch11.addGeometry(Part.Circle(V(195.4, 4.3, 0), V(0, 0, 1), 0.8), False)
sketch11.addGeometry(Part.Circle(V(78, 4.3, 0), V(0, 0, 1), 0.8), False)
sketch11.addConstraint(Sketcher.Constraint("Equal", 0, 1))
sketch11.addConstraint(Sketcher.Constraint("Equal", 1, 2))
sketch11.addConstraint(Sketcher.Constraint("Equal", 2, 3))
sketch11.addConstraint(Sketcher.Constraint("Equal", 3, 4))
sketch11.addConstraint(Sketcher.Constraint("Equal", 4, 5))
sketch11.addConstraint(Sketcher.Constraint("Equal", 5, 6))
sketch11.addConstraint(Sketcher.Constraint("Equal", 6, 7))
sketch11.addConstraint(Sketcher.Constraint("Equal", 7, 8))
sketch11.addConstraint(Sketcher.Constraint("Horizontal", 2, 3, 3, 3))
sketch11.addConstraint(Sketcher.Constraint("Horizontal", 1, 3, 4, 3))
sketch11.addConstraint(Sketcher.Constraint("Horizontal", 0, 3, 5, 3))
sketch11.addConstraint(Sketcher.Constraint("Horizontal", 6, 3, 7, 3))
sketch11.addConstraint(Sketcher.Constraint("Horizontal", 7, 3, 8, 3))
sketch11.addConstraint(Sketcher.Constraint("Vertical", 0, 3, 1, 3))
sketch11.addConstraint(Sketcher.Constraint("Vertical", 4, 3, 5, 3))
sketch11.addConstraint(Sketcher.Constraint("Diameter", 0, 1.6))
sketch11.addConstraint(Sketcher.Constraint("DistanceY", -1, 1, 0, 3, 45.0))
sketch11.addConstraint(Sketcher.Constraint("DistanceX", 2, 3, 1, 3, 98.0))
sketch11.addConstraint(Sketcher.Constraint("DistanceX", 3, 3, 2, 3, 185.0))
sketch11.addConstraint(Sketcher.Constraint("DistanceX", -1, 1, 0, 3, 385.5))
sketch11.addConstraint(Sketcher.Constraint("DistanceY", -1, 1, 1, 3, 88.8))
sketch11.addConstraint(Sketcher.Constraint("DistanceY", -1, 1, 2, 3, 128.2))
sketch11.addConstraint(Sketcher.Constraint("DistanceX", -1, 1, 4, 3, 5.3))
sketch11.addConstraint(Sketcher.Constraint("DistanceY", -1, 1, 6, 3, 4.3))
sketch11.addConstraint(Sketcher.Constraint("DistanceX", -1, 1, 6, 3, 312.818528))
sketch11.addConstraint(Sketcher.Constraint("DistanceX", -1, 1, 7, 3, 195.407395))
sketch11.addConstraint(Sketcher.Constraint("DistanceX", -1, 1, 8, 3, 77.981472))
doc.recompute()
hole2 = body.newObject("PartDesign::Hole", "Hole001")
hole2.Profile = sketch11
hole2.ThreadType = "None"
hole2.Diameter = 1.6
hole2.DepthType = "Dimension"
hole2.Depth = 4
hole2.DrillPoint = "Angled"
hole2.DrillPointAngle = 118
doc.recompute()

fillet4 = body.newObject("PartDesign::Fillet", "Fillet003")
fillet4.Base = (hole2, edges_at(hole2, [
    (388.8, -0.85, 131.8),
    (388.8, -0.85, 2),
    (2, -0.85, 2),
    (2, -0.85, 131.8),
    (385.5, 3.3, 7.6),
    (5.3, 3.3, 7.6),
]))
fillet4.Radius = 4

sketch12 = body.newObject("Sketcher::SketchObject", "Sketch011")
sketch12.AttachmentSupport = (doc.getObject("XZ_Plane"), [""])
sketch12.MapMode = "FlatFace"
sketch12.addGeometry(Part.ArcOfCircle(Part.Circle(V(40, 8, 0), V(0, 0, 1), 6), math.radians(0), math.radians(270)), False)
sketch12.addGeometry(Part.ArcOfCircle(Part.Circle(V(40, 8, 0), V(0, 0, 1), 6), math.radians(-90), math.radians(0)), False)
sketch12.addGeometry(Part.ArcOfCircle(Part.Circle(V(28, 8, 0), V(0, 0, 1), 6), math.radians(180), math.radians(270)), False)
sketch12.addGeometry(Part.ArcOfCircle(Part.Circle(V(28, 8, 0), V(0, 0, 1), 6), math.radians(-90), math.radians(0)), False)
sketch12.addGeometry(Part.ArcOfCircle(Part.Circle(V(28, 8, 0), V(0, 0, 1), 6), math.radians(0), math.radians(180)), False)
sketch12.addConstraint(Sketcher.Constraint("Tangent", 0, 1, 1, 2))
sketch12.addConstraint(Sketcher.Constraint("Coincident", 1, 1, 0, 2))
sketch12.addConstraint(Sketcher.Constraint("Tangent", 2, 2, 3, 1))
sketch12.addConstraint(Sketcher.Constraint("Tangent", 3, 2, 4, 1))
sketch12.addConstraint(Sketcher.Constraint("Tangent", 4, 2, 2, 1))
sketch12.addConstraint(Sketcher.Constraint("Equal", 1, 2))
sketch12.addConstraint(Sketcher.Constraint("Horizontal", 1, 3, 2, 3))
sketch12.addConstraint(Sketcher.Constraint("Horizontal", 4, 3, 0, 1))
sketch12.addConstraint(Sketcher.Constraint("Horizontal", 0, 1, 3, 2))
sketch12.addConstraint(Sketcher.Constraint("Horizontal", 3, 2, 4, 2))
sketch12.addConstraint(Sketcher.Constraint("Vertical", 0, 3, 1, 1))
sketch12.addConstraint(Sketcher.Constraint("Vertical", 4, 3, 2, 2))
sketch12.addConstraint(Sketcher.Constraint("Radius", 0, 5.6))
sketch12.addConstraint(Sketcher.Constraint("DistanceY", -1, 1, 1, 1, 2.0))
sketch12.addConstraint(Sketcher.Constraint("DistanceX", 2, 3, 0, 3, 12.0))
sketch12.addConstraint(Sketcher.Constraint("DistanceX", -1, 1, 0, 3, 40.3))
pocket6 = body.newObject("PartDesign::Pocket", "Pocket005")
pocket6.Profile = sketch12
pocket6.Length = 1.8
doc.recompute()

chamfer = body.newObject("PartDesign::Chamfer", "Chamfer")
chamfer.Base = (pocket6, edges_at(pocket6, [
    (390.8, 13.1, 66.9),
    (195.4, 13.1, 0),
    (257.35, 13.1, 106.05),
    (195.4, 13.1, 9),
    (376.8, 13.1, 66.95),
    (319.3, 13.1, 124.9),
    (133.45, 13.1, 124.9),
    (14, 13.1, 66.95),
    (261.8, 13.1, 114.925),
    (252.9, 13.1, 114.925),
    (376.478, 13.1, 9.322),
    (376.478, 13.1, 124.578),
    (14.322, 13.1, 124.578),
    (14.322, 13.1, 9.322),
    (262.122, 13.1, 124.578),
    (252.578, 13.1, 124.578),
    (0, 13.1, 66.9),
    (14.15, -1.7, 0),
    (390.8, -1.7, 66.9),
    (195.4, -1.7, 133.8),
    (0, -1.7, 66.9),
    (215.55, -1.7, 0),
    (0, 5.7, 0),
    (390.8, 5.7, 0),
    (390.8, 5.7, 133.8),
    (0, 5.7, 133.8),
    (195.4, 13.1, 133.8),
]))
chamfer.Size = 0.5

doc.recompute()
